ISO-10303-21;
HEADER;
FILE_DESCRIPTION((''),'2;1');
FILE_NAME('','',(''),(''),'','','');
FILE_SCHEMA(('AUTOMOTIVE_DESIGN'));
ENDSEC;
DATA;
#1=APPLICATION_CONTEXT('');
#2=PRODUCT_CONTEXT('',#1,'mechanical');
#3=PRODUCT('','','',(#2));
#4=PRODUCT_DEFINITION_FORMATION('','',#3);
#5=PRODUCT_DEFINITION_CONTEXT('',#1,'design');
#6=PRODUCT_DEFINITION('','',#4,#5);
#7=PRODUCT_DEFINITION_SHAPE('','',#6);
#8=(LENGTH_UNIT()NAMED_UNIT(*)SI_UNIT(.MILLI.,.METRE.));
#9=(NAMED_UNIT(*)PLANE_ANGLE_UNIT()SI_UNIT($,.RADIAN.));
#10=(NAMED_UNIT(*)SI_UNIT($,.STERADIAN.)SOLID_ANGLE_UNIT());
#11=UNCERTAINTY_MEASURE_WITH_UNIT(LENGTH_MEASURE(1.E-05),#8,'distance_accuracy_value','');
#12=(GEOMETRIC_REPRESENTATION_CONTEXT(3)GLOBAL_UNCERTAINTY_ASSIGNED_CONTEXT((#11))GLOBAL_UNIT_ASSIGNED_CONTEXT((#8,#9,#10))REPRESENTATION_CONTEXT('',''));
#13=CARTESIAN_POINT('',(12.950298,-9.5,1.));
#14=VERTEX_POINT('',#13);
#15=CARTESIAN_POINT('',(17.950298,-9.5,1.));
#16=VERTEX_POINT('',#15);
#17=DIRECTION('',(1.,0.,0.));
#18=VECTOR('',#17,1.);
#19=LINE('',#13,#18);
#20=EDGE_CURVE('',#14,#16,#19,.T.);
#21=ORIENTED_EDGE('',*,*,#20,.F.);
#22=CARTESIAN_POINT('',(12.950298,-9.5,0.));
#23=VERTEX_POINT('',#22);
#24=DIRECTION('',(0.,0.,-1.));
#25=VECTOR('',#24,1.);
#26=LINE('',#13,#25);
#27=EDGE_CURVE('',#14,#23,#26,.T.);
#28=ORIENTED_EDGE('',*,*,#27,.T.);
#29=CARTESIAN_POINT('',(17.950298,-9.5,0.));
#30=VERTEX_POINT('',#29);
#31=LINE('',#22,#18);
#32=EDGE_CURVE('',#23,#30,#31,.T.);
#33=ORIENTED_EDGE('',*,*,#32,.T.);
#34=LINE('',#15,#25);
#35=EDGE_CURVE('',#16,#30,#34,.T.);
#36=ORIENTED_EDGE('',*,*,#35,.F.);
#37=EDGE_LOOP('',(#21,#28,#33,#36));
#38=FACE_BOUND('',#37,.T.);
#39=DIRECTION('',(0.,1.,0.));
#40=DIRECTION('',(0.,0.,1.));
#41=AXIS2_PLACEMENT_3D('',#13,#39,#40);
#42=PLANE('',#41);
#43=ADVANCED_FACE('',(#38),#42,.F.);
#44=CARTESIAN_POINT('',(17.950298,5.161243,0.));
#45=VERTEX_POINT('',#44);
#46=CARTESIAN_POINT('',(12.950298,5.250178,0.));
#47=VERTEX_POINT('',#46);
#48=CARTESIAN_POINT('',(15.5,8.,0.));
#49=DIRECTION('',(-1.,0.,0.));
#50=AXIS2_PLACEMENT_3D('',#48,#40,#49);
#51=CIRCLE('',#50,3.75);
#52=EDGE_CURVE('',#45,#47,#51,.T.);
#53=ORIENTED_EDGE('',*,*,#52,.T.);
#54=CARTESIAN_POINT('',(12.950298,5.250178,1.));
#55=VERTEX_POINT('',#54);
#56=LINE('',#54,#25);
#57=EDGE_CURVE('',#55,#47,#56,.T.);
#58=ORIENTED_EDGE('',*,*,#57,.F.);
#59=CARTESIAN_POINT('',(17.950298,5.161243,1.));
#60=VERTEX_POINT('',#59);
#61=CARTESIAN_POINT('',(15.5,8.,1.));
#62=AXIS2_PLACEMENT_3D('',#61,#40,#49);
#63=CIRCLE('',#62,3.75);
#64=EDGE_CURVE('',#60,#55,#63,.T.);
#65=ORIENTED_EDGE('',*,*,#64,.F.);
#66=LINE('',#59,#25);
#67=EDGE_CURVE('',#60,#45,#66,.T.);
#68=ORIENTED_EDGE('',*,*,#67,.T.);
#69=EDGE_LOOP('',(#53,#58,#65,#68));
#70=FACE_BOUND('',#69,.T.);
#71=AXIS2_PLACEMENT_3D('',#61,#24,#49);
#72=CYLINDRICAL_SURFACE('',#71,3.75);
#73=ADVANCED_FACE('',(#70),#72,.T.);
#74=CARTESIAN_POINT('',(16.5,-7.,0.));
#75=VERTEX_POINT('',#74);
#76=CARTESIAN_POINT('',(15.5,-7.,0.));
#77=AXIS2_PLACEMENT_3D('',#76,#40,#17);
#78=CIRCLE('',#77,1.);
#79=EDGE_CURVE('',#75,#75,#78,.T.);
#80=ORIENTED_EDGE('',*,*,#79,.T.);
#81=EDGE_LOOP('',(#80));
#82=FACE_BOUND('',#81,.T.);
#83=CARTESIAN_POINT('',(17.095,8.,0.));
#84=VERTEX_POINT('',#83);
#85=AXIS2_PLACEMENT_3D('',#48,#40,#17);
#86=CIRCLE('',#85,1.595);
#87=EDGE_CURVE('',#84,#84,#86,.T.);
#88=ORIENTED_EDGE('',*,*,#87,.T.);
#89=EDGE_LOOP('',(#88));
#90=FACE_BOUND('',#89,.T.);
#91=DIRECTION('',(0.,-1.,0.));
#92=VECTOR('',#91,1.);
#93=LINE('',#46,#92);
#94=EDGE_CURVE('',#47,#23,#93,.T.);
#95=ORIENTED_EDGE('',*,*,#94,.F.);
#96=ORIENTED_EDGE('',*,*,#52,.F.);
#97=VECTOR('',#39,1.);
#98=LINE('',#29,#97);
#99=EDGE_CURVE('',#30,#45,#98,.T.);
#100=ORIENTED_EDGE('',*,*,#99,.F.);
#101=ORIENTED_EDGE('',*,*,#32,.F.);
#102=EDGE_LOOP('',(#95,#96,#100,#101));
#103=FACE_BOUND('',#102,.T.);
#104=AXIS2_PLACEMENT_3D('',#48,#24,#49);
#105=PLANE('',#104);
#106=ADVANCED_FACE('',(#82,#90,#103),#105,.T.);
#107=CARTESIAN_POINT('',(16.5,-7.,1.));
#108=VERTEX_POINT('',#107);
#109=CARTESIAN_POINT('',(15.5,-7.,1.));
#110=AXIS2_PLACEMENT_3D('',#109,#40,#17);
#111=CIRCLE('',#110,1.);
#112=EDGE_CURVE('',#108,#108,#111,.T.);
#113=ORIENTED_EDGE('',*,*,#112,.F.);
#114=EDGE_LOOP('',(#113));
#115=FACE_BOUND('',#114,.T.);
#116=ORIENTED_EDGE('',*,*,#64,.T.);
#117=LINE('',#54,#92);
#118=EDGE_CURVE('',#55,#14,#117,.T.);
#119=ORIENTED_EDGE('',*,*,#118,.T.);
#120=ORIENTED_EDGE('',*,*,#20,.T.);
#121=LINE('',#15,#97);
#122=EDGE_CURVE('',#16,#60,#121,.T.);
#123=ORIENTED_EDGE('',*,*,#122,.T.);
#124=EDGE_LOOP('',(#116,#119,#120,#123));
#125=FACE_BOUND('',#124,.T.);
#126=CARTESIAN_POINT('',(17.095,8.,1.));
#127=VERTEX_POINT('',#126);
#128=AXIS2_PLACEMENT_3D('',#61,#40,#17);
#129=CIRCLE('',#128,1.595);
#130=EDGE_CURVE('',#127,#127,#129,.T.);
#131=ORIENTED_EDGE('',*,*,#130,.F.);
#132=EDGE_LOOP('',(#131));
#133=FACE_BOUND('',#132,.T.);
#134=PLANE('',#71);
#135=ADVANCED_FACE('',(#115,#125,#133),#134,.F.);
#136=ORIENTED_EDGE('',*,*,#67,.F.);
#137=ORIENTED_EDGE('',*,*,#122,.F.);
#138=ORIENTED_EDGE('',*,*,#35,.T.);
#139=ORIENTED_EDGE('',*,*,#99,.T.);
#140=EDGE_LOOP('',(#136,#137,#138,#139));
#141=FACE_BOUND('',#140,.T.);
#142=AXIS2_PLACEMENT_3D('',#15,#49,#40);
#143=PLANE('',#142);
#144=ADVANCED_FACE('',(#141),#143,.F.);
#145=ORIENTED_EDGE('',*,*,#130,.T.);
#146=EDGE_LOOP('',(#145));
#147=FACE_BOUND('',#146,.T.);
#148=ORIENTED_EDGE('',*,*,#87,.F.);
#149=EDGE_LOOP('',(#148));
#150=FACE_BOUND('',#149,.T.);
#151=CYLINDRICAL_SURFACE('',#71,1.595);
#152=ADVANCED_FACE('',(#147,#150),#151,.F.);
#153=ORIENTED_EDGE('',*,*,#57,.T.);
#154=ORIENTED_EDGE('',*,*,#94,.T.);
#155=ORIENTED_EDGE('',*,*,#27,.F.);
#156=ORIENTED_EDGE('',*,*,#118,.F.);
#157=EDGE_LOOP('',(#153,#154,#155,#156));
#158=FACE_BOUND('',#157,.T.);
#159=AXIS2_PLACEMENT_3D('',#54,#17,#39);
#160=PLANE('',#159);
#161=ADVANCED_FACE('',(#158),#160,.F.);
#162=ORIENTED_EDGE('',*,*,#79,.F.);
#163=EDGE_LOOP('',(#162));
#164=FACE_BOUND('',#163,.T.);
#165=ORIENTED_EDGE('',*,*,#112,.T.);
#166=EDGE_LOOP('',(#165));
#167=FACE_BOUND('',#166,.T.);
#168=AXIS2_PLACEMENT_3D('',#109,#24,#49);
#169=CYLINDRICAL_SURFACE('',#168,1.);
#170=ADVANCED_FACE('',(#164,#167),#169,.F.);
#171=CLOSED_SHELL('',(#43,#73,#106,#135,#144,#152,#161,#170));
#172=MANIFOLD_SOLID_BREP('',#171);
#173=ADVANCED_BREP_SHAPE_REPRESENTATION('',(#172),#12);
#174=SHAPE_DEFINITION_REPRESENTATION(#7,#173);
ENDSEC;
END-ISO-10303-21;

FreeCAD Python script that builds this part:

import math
import FreeCAD as App
import Part
import Sketcher

doc = App.newDocument("Part")
body = doc.addObject("PartDesign::Body", "Body")

# Sketch on XY plane
sketch1 = doc.addObject("Sketcher::SketchObject", "Sketch")
body.addObject(sketch1)
sketch1.AttachmentSupport = (doc.XY_Plane, [""])
sketch1.MapMode = "FlatFace"
sketch1.addGeometry([
    Part.LineSegment(App.Vector(13, 5.3, 0), App.Vector(13, -9.5, 0)),  # 0
    Part.LineSegment(App.Vector(13, -9.5, 0), App.Vector(18, -9.5, 0)),  # 1
    Part.LineSegment(App.Vector(18, -9.5, 0), App.Vector(18, 5.2, 0)),  # 2
    Part.ArcOfCircle(Part.Circle(App.Vector(15.5, 8, 0), App.Vector(0, 0, 1), 3.8), math.radians(-49), math.radians(227)),  # 3
    Part.Circle(App.Vector(15.5, -7, 0), App.Vector(0, 0, 1), 1),  # 4
    Part.Circle(App.Vector(15.5, 8, 0), App.Vector(0, 0, 1), 1.6),  # 5
], False)
sketch1.addConstraint([
    Sketcher.Constraint("Coincident", 0, 2, 1, 1),
    Sketcher.Constraint("Coincident", 1, 2, 2, 1),
    Sketcher.Constraint("Coincident", 2, 2, 3, 1),
    Sketcher.Constraint("Coincident", 3, 2, 0, 1),
    Sketcher.Constraint("Vertical", 0),
    Sketcher.Constraint("Horizontal", 1),
    Sketcher.Constraint("Vertical", 2),
    Sketcher.Constraint("Coincident", 5, 3, 3, 3),
    Sketcher.Constraint("Vertical", 3, 3, 4, 3),
    Sketcher.Constraint("Diameter", 4, 2.0),
    Sketcher.Constraint("Diameter", 5, 3.19),
    Sketcher.Constraint("DistanceX", 1, 1, 1, 2, 5.0),
    Sketcher.Constraint("Radius", 3, 3.75),
    Sketcher.Constraint("DistanceY", -1, 1, 3, 3, 8.0),
    Sketcher.Constraint("DistanceY", 4, 3, -1, 1, 7.0),
    Sketcher.Constraint("DistanceX", -1, 1, 3, 3, 15.5),
    Sketcher.Constraint("DistanceY", 0, 2, -1, 1, 9.5),
    Sketcher.Constraint("DistanceY", 0, 2, 0, 1, 14.750178),
])
pad1 = doc.addObject("PartDesign::Pad", "Pad")
body.addObject(pad1)
pad1.Profile = sketch1
pad1.Length = 1

doc.recompute()
